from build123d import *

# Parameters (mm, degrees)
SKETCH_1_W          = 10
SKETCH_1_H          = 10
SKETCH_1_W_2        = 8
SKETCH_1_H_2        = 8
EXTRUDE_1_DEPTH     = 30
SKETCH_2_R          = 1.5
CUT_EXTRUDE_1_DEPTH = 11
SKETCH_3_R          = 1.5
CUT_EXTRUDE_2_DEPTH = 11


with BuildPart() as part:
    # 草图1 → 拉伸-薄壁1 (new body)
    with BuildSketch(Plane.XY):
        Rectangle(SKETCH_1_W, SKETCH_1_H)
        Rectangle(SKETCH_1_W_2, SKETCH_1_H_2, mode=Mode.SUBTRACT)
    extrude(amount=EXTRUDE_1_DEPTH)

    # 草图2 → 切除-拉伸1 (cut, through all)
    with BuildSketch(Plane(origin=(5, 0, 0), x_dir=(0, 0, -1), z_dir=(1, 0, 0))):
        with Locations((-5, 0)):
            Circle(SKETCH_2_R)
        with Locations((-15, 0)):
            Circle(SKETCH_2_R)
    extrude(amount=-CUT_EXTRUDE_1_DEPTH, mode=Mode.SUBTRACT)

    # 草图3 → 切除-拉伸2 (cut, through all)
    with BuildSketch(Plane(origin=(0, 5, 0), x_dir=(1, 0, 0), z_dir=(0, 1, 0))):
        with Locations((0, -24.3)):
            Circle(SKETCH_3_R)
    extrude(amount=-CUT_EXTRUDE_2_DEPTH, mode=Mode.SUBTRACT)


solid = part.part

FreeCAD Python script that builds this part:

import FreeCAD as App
import Part
import Sketcher
from FreeCAD import Vector

doc = App.newDocument("Part")
body = doc.addObject("PartDesign::Body", "Body")

# Sketch on XY plane
sketch1 = body.newObject("Sketcher::SketchObject", "Sketch")
sketch1.AttachmentSupport = (doc.getObject("XY_Plane"), [""])
sketch1.MapMode = "FlatFace"
sketch1.addGeometry(Part.LineSegment(Vector(-5, 5, 0), Vector(-5, -5, 0)), False)
sketch1.addGeometry(Part.LineSegment(Vector(-5, -5, 0), Vector(5, -5, 0)), False)
sketch1.addGeometry(Part.LineSegment(Vector(5, -5, 0), Vector(5, 5, 0)), False)
sketch1.addGeometry(Part.LineSegment(Vector(5, 5, 0), Vector(-5, 5, 0)), False)
sketch1.addGeometry(Part.LineSegment(Vector(4, -4, 0), Vector(-4, -4, 0)), False)
sketch1.addGeometry(Part.LineSegment(Vector(-4, -4, 0), Vector(-4, 4, 0)), False)
sketch1.addGeometry(Part.LineSegment(Vector(-4, 4, 0), Vector(4, 4, 0)), False)
sketch1.addGeometry(Part.LineSegment(Vector(4, 4, 0), Vector(4, -4, 0)), False)
sketch1.addConstraint(Sketcher.Constraint("Coincident", 0, 2, 1, 1))
sketch1.addConstraint(Sketcher.Constraint("Coincident", 1, 2, 2, 1))
sketch1.addConstraint(Sketcher.Constraint("Coincident", 2, 2, 3, 1))
sketch1.addConstraint(Sketcher.Constraint("Coincident", 3, 2, 0, 1))
sketch1.addConstraint(Sketcher.Constraint("Coincident", 4, 2, 5, 1))
sketch1.addConstraint(Sketcher.Constraint("Coincident", 5, 2, 6, 1))
sketch1.addConstraint(Sketcher.Constraint("Coincident", 6, 2, 7, 1))
sketch1.addConstraint(Sketcher.Constraint("Coincident", 7, 2, 4, 1))
sketch1.addConstraint(Sketcher.Constraint("Vertical", 0))
sketch1.addConstraint(Sketcher.Constraint("Horizontal", 1))
sketch1.addConstraint(Sketcher.Constraint("Vertical", 2))
sketch1.addConstraint(Sketcher.Constraint("Horizontal", 3))
sketch1.addConstraint(Sketcher.Constraint("Horizontal", 4))
sketch1.addConstraint(Sketcher.Constraint("Vertical", 5))
sketch1.addConstraint(Sketcher.Constraint("Horizontal", 6))
sketch1.addConstraint(Sketcher.Constraint("Vertical", 7))
sketch1.addConstraint(Sketcher.Constraint("Symmetric", 0, 2, 2, 2, -1, 1))
sketch1.addConstraint(Sketcher.Constraint("Symmetric", 4, 2, 6, 2, -1, 1))
sketch1.addConstraint(Sketcher.Constraint("Equal", 3, 0))
sketch1.addConstraint(Sketcher.Constraint("Equal", 6, 5))
sketch1.addConstraint(Sketcher.Constraint("DistanceX", 1, 1, 1, 2, 10.0))
sketch1.addConstraint(Sketcher.Constraint("DistanceX", 4, 2, 4, 1, 8.0))
pad1 = body.newObject("PartDesign::Pad", "Pad")
pad1.Profile = sketch1
pad1.Length = 30

# Sketch on YZ plane
sketch2 = body.newObject("Sketcher::SketchObject", "Sketch001")
sketch2.AttachmentSupport = (doc.getObject("YZ_Plane"), [""])
sketch2.MapMode = "FlatFace"
sketch2.AttachmentOffset = App.Placement(Vector(0, 0, 5), App.Rotation())
sketch2.addGeometry(Part.Circle(Vector(0, 5, 0), Vector(0, 0, 1), 1.5), False)
sketch2.addGeometry(Part.Circle(Vector(0, 15, 0), Vector(0, 0, 1), 1.5), False)
sketch2.addConstraint(Sketcher.Constraint("Equal", 0, 1))
sketch2.addConstraint(Sketcher.Constraint("PointOnObject", 0, 3, -2))
sketch2.addConstraint(Sketcher.Constraint("PointOnObject", 1, 3, -2))
sketch2.addConstraint(Sketcher.Constraint("Diameter", 0, 3.0))
sketch2.addConstraint(Sketcher.Constraint("DistanceY", -1, 1, 0, 3, 5.0))
sketch2.addConstraint(Sketcher.Constraint("DistanceY", -1, 1, 1, 3, 15.0))
pocket1 = body.newObject("PartDesign::Pocket", "Pocket")
pocket1.Profile = sketch2
pocket1.Type = "ThroughAll"

# Sketch on XZ plane
sketch3 = body.newObject("Sketcher::SketchObject", "Sketch002")
sketch3.AttachmentSupport = (doc.getObject("XZ_Plane"), [""])
sketch3.MapMode = "FlatFace"
sketch3.AttachmentOffset = App.Placement(Vector(0, 0, -5), App.Rotation())
sketch3.addGeometry(Part.Circle(Vector(0, 24.3, 0), Vector(0, 0, 1), 1.5), False)
sketch3.addConstraint(Sketcher.Constraint("PointOnObject", 0, 3, -2))
sketch3.addConstraint(Sketcher.Constraint("Diameter", 0, 3.0))
sketch3.addConstraint(Sketcher.Constraint("DistanceY", -1, 1, 0, 3, 24.3))
pocket2 = body.newObject("PartDesign::Pocket", "Pocket001")
pocket2.Profile = sketch3
pocket2.Type = "ThroughAll"
pocket2.Reversed = True

doc.recompute()
